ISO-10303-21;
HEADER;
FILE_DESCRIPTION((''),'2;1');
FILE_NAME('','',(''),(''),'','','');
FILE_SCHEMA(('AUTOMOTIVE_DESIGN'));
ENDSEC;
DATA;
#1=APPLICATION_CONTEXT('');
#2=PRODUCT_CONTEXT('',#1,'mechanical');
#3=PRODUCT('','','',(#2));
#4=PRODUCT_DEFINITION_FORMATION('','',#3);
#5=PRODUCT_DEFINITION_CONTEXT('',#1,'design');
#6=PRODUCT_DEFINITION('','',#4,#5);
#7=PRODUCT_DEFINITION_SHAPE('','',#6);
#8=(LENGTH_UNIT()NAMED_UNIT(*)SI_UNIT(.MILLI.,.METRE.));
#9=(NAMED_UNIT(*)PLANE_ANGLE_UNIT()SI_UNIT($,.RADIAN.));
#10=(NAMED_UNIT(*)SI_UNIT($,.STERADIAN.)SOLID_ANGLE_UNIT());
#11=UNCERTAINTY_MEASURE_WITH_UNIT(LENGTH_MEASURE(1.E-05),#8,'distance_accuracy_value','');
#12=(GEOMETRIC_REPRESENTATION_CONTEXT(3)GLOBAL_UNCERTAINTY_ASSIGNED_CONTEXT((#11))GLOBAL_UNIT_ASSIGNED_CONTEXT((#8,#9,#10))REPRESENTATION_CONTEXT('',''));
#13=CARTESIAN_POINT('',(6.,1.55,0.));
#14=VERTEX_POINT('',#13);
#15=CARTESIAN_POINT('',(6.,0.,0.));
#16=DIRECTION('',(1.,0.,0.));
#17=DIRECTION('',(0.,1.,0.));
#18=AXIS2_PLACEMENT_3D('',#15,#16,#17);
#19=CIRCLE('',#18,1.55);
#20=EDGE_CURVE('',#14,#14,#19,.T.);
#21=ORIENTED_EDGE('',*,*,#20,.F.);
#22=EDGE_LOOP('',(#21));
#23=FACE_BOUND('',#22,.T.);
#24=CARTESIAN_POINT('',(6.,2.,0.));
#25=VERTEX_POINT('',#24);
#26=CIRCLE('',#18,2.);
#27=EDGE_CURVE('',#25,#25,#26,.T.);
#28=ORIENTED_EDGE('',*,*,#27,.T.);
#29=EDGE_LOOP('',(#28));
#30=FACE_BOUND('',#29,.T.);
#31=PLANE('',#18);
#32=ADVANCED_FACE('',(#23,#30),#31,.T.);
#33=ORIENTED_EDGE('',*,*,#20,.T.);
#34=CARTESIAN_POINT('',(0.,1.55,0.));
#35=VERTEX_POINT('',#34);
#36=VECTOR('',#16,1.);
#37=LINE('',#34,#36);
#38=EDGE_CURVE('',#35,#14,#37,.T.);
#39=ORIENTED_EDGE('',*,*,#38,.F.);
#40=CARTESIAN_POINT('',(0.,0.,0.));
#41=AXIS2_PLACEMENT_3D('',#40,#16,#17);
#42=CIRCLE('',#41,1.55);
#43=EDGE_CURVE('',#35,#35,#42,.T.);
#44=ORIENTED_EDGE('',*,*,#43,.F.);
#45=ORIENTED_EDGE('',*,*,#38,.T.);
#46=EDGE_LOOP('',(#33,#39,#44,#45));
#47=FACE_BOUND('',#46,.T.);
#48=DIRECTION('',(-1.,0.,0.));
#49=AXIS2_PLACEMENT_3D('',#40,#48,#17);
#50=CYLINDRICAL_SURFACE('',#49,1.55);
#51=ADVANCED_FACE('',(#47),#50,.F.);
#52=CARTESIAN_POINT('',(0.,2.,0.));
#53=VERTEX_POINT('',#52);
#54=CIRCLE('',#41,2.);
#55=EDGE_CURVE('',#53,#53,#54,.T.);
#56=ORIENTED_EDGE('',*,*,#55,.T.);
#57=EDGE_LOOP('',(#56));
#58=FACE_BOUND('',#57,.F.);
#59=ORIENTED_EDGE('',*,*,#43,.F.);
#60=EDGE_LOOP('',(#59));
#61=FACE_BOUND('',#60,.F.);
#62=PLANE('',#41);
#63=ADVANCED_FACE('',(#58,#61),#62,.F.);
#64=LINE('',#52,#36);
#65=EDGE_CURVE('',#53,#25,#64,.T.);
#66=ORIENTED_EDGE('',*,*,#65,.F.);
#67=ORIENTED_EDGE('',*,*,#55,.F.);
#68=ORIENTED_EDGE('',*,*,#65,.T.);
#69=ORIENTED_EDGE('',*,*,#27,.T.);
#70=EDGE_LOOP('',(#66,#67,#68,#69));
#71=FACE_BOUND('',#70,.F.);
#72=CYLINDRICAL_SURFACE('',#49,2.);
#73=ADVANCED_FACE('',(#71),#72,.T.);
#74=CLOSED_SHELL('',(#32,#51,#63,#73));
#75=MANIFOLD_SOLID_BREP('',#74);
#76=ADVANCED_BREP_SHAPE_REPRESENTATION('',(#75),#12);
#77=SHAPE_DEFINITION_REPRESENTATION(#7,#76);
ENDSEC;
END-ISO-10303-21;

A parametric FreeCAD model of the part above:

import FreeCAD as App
import Part
import Sketcher

V = App.Vector

doc = App.newDocument("Part")
body = doc.addObject("PartDesign::Body", "Body")

# Sketch on YZ plane
sketch1 = body.newObject("Sketcher::SketchObject", "Sketch")
sketch1.AttachmentSupport = (doc.getObject("YZ_Plane"), [""])
sketch1.MapMode = "FlatFace"
sketch1.addGeometry(Part.Circle(V(0, 0, 0), V(0, 0, 1), 2), False)
sketch1.addGeometry(Part.Circle(V(0, 0, 0), V(0, 0, 1), 1.55), False)
sketch1.addConstraint(Sketcher.Constraint("Coincident", 0, 3, -1, 1))
sketch1.addConstraint(Sketcher.Constraint("Coincident", 1, 3, -1, 1))
sketch1.addConstraint(Sketcher.Constraint("Diameter", 0, 4.0))
sketch1.addConstraint(Sketcher.Constraint("Diameter", 1, 3.1))
pad1 = body.newObject("PartDesign::Pad", "Pad")
pad1.Profile = sketch1
pad1.Length = 6

doc.recompute()
